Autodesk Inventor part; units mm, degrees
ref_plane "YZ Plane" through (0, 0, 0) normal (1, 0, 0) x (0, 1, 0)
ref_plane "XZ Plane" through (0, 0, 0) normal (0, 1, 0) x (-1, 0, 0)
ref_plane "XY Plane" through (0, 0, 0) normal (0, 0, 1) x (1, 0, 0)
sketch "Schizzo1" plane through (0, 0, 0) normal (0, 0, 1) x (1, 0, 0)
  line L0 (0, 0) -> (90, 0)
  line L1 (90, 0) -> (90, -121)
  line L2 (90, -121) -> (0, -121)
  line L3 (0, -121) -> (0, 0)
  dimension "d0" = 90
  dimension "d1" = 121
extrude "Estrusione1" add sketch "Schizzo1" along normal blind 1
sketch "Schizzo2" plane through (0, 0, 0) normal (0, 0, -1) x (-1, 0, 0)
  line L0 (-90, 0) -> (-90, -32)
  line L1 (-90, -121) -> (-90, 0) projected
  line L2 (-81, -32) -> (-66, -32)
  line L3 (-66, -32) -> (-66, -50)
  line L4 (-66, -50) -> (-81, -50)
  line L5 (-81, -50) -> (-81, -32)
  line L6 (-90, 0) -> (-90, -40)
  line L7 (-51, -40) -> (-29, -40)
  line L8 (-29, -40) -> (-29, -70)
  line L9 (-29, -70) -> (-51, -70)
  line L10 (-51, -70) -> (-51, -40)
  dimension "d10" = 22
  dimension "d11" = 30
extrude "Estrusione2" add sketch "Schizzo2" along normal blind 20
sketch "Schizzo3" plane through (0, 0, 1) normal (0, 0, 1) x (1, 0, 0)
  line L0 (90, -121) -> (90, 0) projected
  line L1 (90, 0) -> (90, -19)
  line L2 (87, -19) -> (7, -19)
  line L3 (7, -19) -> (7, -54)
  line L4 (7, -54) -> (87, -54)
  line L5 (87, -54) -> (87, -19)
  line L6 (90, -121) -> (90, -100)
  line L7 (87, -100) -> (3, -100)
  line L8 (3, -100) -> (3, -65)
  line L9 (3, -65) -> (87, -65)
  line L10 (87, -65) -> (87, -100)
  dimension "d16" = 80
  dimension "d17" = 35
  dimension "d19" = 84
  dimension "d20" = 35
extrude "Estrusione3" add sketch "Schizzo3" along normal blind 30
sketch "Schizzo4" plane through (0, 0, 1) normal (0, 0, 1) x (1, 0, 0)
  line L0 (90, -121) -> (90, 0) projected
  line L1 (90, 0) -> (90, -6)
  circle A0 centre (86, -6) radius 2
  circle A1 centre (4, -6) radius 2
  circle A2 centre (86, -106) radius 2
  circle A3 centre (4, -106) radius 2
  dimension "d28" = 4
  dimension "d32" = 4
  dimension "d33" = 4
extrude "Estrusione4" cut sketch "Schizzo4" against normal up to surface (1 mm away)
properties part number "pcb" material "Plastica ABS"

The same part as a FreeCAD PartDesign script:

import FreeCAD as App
import Part
import Sketcher

V = App.Vector


def add_polygon(sketch, points):
    """Adds a closed chain of lines whose ends are joined by coincident constraints."""
    first, n = sketch.GeometryCount, len(points)
    for a, b in zip(points, points[1:] + points[:1]):
        sketch.addGeometry(Part.LineSegment(App.Vector(*a, 0), App.Vector(*b, 0)), False)
    for i in range(n):
        sketch.addConstraint(Sketcher.Constraint("Coincident", first + i, 2, first + (i + 1) % n, 1))

doc = App.newDocument("Part")
params = doc.addObject("Spreadsheet::Sheet", "Params")
for row, (alias, value) in enumerate([
    ("sketch1_width", "90 mm"),
    ("sketch1_height", "121 mm"),
    ("pad1_length", "1 mm"),
    ("sketch2_width", "22 mm"),
    ("sketch2_height", "30 mm"),
    ("sketch2_width2", "15 mm"),
    ("sketch2_height2", "18 mm"),
    ("pad2_length", "20 mm"),
    ("sketch3_width", "80 mm"),
    ("sketch3_width2", "84 mm"),
    ("sketch3_height", "35 mm"),
    ("pad3_length", "30 mm"),
    ("sketch4_diameter", "4 mm"),
    ("pocket1_length", "1 mm"),
], start=1):
    params.set(f"A{row}", alias)
    params.set(f"B{row}", "=" + value)
    params.setAlias(f"B{row}", alias)

body = doc.addObject("PartDesign::Body", "Body")

sketch1 = body.newObject("Sketcher::SketchObject", "Sketch")
sketch1.AttachmentSupport = (doc.getObject("XY_Plane"), [""])
sketch1.MapMode = "FlatFace"
add_polygon(sketch1, [(90, 0), (0, 0), (0, -121), (90, -121)])
sketch1.addConstraint(Sketcher.Constraint("Horizontal", 0))
sketch1.addConstraint(Sketcher.Constraint("Vertical", 1))
sketch1.addConstraint(Sketcher.Constraint("Horizontal", 2))
sketch1.addConstraint(Sketcher.Constraint("Vertical", 3))
sketch1.addConstraint(Sketcher.Constraint("Coincident", 0, 2, -1, 1))
sketch1.addConstraint(Sketcher.Constraint("DistanceX", 0, 2, 0, 1, 90.0))
sketch1.addConstraint(Sketcher.Constraint("DistanceY", 1, 2, 1, 1, 121.0))
sketch1.setExpression("Constraints[9]", "Params.sketch1_width")
sketch1.setExpression("Constraints[10]", "Params.sketch1_height")
pad1 = body.newObject("PartDesign::Pad", "Pad")
pad1.Profile = sketch1
pad1.setExpression("Length", "Params.pad1_length")

sketch2 = body.newObject("Sketcher::SketchObject", "Sketch001")
sketch2.AttachmentSupport = (doc.getObject("XY_Plane"), [""])
sketch2.MapMode = "FlatFace"
add_polygon(sketch2, [(66, -32), (81, -32), (81, -50), (66, -50)])
add_polygon(sketch2, [(29, -40), (51, -40), (51, -70), (29, -70)])
sketch2.addConstraint(Sketcher.Constraint("Horizontal", 0))
sketch2.addConstraint(Sketcher.Constraint("Vertical", 1))
sketch2.addConstraint(Sketcher.Constraint("Horizontal", 2))
sketch2.addConstraint(Sketcher.Constraint("Vertical", 3))
sketch2.addConstraint(Sketcher.Constraint("Horizontal", 4))
sketch2.addConstraint(Sketcher.Constraint("Vertical", 5))
sketch2.addConstraint(Sketcher.Constraint("Horizontal", 6))
sketch2.addConstraint(Sketcher.Constraint("Vertical", 7))
sketch2.addConstraint(Sketcher.Constraint("DistanceX", 4, 1, 4, 2, 22.0))
sketch2.addConstraint(Sketcher.Constraint("DistanceY", 5, 2, 5, 1, 30.0))
sketch2.addConstraint(Sketcher.Constraint("DistanceX", 4, 2, 0, 2, 30.0))
sketch2.addConstraint(Sketcher.Constraint("DistanceX", 0, 1, 0, 2, 15.0))
sketch2.addConstraint(Sketcher.Constraint("DistanceY", 1, 2, 1, 1, 18.0))
sketch2.addConstraint(Sketcher.Constraint("DistanceX", -1, 1, 0, 2, 81.0))
sketch2.addConstraint(Sketcher.Constraint("DistanceY", 0, 2, -1, 1, 32.0))
sketch2.addConstraint(Sketcher.Constraint("DistanceY", 4, 2, -1, 1, 40.0))
sketch2.setExpression("Constraints[16]", "Params.sketch2_width")
sketch2.setExpression("Constraints[17]", "Params.sketch2_height")
sketch2.setExpression("Constraints[19]", "Params.sketch2_width2")
sketch2.setExpression("Constraints[20]", "Params.sketch2_height2")
pad2 = body.newObject("PartDesign::Pad", "Pad001")
pad2.Profile = sketch2
pad2.setExpression("Length", "Params.pad2_length")
pad2.Reversed = True

sketch3 = body.newObject("Sketcher::SketchObject", "Sketch002")
sketch3.AttachmentSupport = (doc.getObject("XY_Plane"), [""])
sketch3.MapMode = "FlatFace"
sketch3.AttachmentOffset = App.Placement(V(0, 0, 1), App.Rotation())
add_polygon(sketch3, [(87, -54), (87, -19), (7, -19), (7, -54)])
add_polygon(sketch3, [(3, -100), (87, -100), (87, -65), (3, -65)])
sketch3.addConstraint(Sketcher.Constraint("Vertical", 0))
sketch3.addConstraint(Sketcher.Constraint("Horizontal", 1))
sketch3.addConstraint(Sketcher.Constraint("Vertical", 2))
sketch3.addConstraint(Sketcher.Constraint("Horizontal", 3))
sketch3.addConstraint(Sketcher.Constraint("Horizontal", 4))
sketch3.addConstraint(Sketcher.Constraint("Vertical", 5))
sketch3.addConstraint(Sketcher.Constraint("Horizontal", 6))
sketch3.addConstraint(Sketcher.Constraint("Vertical", 7))
sketch3.addConstraint(Sketcher.Constraint("Vertical", 3, 2, 4, 2))
sketch3.addConstraint(Sketcher.Constraint("Equal", 2, 5))
sketch3.addConstraint(Sketcher.Constraint("DistanceX", 1, 2, 1, 1, 80.0))
sketch3.addConstraint(Sketcher.Constraint("DistanceX", 4, 1, 4, 2, 84.0))
sketch3.addConstraint(Sketcher.Constraint("DistanceY", 0, 1, 0, 2, 35.0))
sketch3.addConstraint(Sketcher.Constraint("DistanceX", -1, 1, 0, 2, 87.0))
sketch3.addConstraint(Sketcher.Constraint("DistanceY", 0, 2, -1, 1, 19.0))
sketch3.addConstraint(Sketcher.Constraint("DistanceY", 4, 2, -1, 1, 100.0))
sketch3.setExpression("Constraints[18]", "Params.sketch3_width")
sketch3.setExpression("Constraints[19]", "Params.sketch3_width2")
sketch3.setExpression("Constraints[20]", "Params.sketch3_height")
pad3 = body.newObject("PartDesign::Pad", "Pad002")
pad3.Profile = sketch3
pad3.setExpression("Length", "Params.pad3_length")

sketch4 = body.newObject("Sketcher::SketchObject", "Sketch003")
sketch4.AttachmentSupport = (doc.getObject("XY_Plane"), [""])
sketch4.MapMode = "FlatFace"
sketch4.AttachmentOffset = App.Placement(V(0, 0, 1), App.Rotation())
sketch4.addGeometry(Part.Circle(V(86, -6, 0), V(0, 0, 1), 2), False)
sketch4.addGeometry(Part.Circle(V(4, -6, 0), V(0, 0, 1), 2), False)
sketch4.addGeometry(Part.Circle(V(86, -106, 0), V(0, 0, 1), 2), False)
sketch4.addGeometry(Part.Circle(V(4, -106, 0), V(0, 0, 1), 2), False)
sketch4.addConstraint(Sketcher.Constraint("Equal", 0, 1))
sketch4.addConstraint(Sketcher.Constraint("Equal", 1, 2))
sketch4.addConstraint(Sketcher.Constraint("Equal", 2, 3))
sketch4.addConstraint(Sketcher.Constraint("Horizontal", 0, 3, 1, 3))
sketch4.addConstraint(Sketcher.Constraint("Horizontal", 2, 3, 3, 3))
sketch4.addConstraint(Sketcher.Constraint("Vertical", 0, 3, 2, 3))
sketch4.addConstraint(Sketcher.Constraint("Vertical", 1, 3, 3, 3))
sketch4.addConstraint(Sketcher.Constraint("Diameter", 0, 4.0))
sketch4.addConstraint(Sketcher.Constraint("DistanceX", -1, 1, 1, 3, 4.0))
sketch4.addConstraint(Sketcher.Constraint("DistanceX", -1, 1, 0, 3, 86.0))
sketch4.addConstraint(Sketcher.Constraint("DistanceY", 0, 3, -1, 1, 6.0))
sketch4.addConstraint(Sketcher.Constraint("DistanceY", 2, 3, -1, 1, 106.0))
sketch4.setExpression("Constraints[7]", "Params.sketch4_diameter")
pocket1 = body.newObject("PartDesign::Pocket", "Pocket")
pocket1.Profile = sketch4
pocket1.setExpression("Length", "Params.pocket1_length")

doc.recompute()
